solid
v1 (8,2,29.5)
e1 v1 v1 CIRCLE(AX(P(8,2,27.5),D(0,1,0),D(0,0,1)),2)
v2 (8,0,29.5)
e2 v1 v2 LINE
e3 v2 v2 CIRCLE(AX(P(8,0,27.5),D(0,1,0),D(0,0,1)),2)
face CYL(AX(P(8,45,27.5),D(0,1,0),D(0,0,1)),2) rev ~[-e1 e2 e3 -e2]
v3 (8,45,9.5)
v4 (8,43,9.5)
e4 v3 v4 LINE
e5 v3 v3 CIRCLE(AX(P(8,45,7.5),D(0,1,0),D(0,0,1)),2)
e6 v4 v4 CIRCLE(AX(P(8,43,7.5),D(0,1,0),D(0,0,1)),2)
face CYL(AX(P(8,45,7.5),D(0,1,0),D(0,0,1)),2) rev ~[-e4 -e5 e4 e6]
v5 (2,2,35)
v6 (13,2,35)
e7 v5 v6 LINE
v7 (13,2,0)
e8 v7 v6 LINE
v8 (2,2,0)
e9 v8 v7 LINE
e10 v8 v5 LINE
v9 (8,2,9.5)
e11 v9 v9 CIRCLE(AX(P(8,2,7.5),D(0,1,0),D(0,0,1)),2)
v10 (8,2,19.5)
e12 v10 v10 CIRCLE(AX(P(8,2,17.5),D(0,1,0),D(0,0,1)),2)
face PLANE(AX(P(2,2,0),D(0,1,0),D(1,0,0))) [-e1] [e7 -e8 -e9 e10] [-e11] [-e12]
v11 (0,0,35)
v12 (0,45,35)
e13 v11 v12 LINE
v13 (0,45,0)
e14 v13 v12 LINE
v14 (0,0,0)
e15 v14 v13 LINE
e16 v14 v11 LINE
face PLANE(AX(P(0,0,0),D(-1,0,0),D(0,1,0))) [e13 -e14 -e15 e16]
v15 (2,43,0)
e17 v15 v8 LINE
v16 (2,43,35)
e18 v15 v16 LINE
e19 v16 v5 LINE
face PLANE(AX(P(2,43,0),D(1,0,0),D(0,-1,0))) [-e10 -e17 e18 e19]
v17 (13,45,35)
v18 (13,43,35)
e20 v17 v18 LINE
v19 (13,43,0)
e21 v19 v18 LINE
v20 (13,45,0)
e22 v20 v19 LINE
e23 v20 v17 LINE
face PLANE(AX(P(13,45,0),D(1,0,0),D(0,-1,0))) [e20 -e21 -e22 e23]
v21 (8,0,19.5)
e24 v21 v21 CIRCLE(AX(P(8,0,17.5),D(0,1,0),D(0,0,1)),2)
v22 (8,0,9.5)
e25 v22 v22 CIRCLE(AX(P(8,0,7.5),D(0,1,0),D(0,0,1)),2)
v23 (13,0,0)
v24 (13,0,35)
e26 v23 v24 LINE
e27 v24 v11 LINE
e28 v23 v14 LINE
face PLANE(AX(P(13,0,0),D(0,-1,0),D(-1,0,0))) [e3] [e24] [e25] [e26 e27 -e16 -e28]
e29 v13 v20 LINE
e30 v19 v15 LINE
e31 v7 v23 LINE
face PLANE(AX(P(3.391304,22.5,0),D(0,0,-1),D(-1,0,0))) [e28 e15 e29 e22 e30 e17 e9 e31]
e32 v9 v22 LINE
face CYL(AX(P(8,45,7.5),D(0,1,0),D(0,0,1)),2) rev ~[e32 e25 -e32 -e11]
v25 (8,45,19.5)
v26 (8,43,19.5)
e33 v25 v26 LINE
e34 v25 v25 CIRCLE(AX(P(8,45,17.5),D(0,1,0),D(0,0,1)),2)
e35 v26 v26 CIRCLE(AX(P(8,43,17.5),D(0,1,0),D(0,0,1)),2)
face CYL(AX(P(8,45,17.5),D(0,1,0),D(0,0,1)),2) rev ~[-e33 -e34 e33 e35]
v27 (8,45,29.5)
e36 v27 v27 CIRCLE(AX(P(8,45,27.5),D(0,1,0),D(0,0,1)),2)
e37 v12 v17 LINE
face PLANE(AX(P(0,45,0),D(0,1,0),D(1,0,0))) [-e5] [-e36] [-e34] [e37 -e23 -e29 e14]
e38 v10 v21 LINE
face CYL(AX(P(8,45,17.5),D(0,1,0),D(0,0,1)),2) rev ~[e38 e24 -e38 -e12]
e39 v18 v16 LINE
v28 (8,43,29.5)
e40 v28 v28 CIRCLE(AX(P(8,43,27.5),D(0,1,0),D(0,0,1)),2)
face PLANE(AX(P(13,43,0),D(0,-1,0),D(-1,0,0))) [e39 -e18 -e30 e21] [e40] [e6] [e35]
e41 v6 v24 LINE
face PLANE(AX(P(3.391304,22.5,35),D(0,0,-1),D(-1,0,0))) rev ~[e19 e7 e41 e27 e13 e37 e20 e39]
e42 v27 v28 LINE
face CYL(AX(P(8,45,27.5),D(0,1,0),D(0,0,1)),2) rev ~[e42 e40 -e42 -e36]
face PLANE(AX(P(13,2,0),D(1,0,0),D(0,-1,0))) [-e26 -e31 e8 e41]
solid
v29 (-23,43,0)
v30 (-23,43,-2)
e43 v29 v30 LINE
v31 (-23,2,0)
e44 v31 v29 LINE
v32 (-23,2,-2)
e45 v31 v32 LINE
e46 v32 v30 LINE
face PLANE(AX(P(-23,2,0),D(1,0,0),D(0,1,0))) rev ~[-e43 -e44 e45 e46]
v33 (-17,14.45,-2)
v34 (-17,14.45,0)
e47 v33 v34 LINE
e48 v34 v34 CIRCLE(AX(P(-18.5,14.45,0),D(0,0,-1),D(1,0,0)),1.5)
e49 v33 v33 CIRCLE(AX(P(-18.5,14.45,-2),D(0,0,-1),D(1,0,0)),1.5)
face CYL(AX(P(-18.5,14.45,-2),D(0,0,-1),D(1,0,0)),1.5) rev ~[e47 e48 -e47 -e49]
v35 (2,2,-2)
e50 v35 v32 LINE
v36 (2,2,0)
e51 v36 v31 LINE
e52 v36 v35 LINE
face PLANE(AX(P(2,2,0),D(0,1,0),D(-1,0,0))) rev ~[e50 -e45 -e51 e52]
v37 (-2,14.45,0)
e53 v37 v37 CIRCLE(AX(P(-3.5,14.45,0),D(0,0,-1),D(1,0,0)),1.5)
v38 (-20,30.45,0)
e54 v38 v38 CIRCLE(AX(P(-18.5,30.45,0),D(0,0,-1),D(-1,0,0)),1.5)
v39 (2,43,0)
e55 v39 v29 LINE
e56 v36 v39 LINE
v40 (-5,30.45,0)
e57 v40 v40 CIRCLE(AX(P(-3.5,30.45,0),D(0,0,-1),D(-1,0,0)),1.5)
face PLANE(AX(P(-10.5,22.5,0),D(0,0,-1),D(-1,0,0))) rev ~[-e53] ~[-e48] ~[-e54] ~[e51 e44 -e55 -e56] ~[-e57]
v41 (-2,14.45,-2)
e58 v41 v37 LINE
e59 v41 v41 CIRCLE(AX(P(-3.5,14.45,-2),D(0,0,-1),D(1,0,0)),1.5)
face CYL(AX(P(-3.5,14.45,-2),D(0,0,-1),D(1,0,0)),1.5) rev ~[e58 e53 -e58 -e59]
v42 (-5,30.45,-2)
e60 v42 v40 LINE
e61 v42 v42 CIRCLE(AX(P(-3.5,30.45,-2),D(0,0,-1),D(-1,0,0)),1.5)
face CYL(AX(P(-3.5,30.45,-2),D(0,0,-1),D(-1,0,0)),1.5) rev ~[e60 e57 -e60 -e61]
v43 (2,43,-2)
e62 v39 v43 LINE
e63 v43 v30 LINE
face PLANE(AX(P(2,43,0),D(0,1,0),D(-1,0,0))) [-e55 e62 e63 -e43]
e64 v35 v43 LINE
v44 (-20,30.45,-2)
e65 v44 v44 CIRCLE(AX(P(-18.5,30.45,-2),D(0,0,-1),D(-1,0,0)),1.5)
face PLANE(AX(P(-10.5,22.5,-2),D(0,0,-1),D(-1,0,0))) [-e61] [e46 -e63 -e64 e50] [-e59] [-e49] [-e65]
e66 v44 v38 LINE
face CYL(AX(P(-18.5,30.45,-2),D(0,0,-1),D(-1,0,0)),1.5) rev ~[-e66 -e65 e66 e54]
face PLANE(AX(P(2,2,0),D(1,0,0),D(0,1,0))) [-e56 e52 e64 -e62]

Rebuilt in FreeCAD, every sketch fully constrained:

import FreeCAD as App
import Part
import Sketcher

V = App.Vector

doc = App.newDocument("Part")
body = doc.addObject("PartDesign::Body", "Body")

sketch1 = body.newObject("Sketcher::SketchObject", "Sketch")
sketch1.AttachmentSupport = (doc.getObject("XY_Plane"), [""])
sketch1.MapMode = "FlatFace"
sketch1.addGeometry([
    Part.LineSegment(V(0, 45, 0), V(0, 0, 0)),
    Part.LineSegment(V(0, 0, 0), V(13, 0, 0)),
    Part.LineSegment(V(13, 0, 0), V(13, 2, 0)),
    Part.LineSegment(V(13, 2, 0), V(2, 2, 0)),
    Part.LineSegment(V(2, 2, 0), V(2, 43, 0)),
    Part.LineSegment(V(2, 43, 0), V(13, 43, 0)),
    Part.LineSegment(V(13, 43, 0), V(13, 45, 0)),
    Part.LineSegment(V(13, 45, 0), V(0, 45, 0)),
], False)
sketch1.addConstraint([
    Sketcher.Constraint("Coincident", 0, 2, 1, 1),
    Sketcher.Constraint("Coincident", 1, 2, 2, 1),
    Sketcher.Constraint("Coincident", 2, 2, 3, 1),
    Sketcher.Constraint("Coincident", 3, 2, 4, 1),
    Sketcher.Constraint("Coincident", 4, 2, 5, 1),
    Sketcher.Constraint("Coincident", 5, 2, 6, 1),
    Sketcher.Constraint("Coincident", 6, 2, 7, 1),
    Sketcher.Constraint("Coincident", 7, 2, 0, 1),
    Sketcher.Constraint("Vertical", 0),
    Sketcher.Constraint("Horizontal", 1),
    Sketcher.Constraint("Vertical", 2),
    Sketcher.Constraint("Horizontal", 3),
    Sketcher.Constraint("Vertical", 4),
    Sketcher.Constraint("Horizontal", 5),
    Sketcher.Constraint("Vertical", 6),
    Sketcher.Constraint("Horizontal", 7),
    Sketcher.Constraint("Coincident", 0, 2, -1, 1),
    Sketcher.Constraint("Vertical", 2, 2, 5, 2),
    Sketcher.Constraint("Equal", 2, 6),
    Sketcher.Constraint("DistanceX", 1, 1, 1, 2, 13.0),
    Sketcher.Constraint("DistanceX", 3, 2, 3, 1, 11.0),
    Sketcher.Constraint("DistanceY", 0, 2, 0, 1, 45.0),
    Sketcher.Constraint("DistanceY", 2, 1, 2, 2, 2.0),
])
pad1 = body.newObject("PartDesign::Pad", "Pad")
pad1.Profile = sketch1
pad1.Length = 35

sketch2 = body.newObject("Sketcher::SketchObject", "Sketch001")
sketch2.AttachmentSupport = (doc.getObject("XZ_Plane"), [""])
sketch2.MapMode = "FlatFace"
sketch2.AttachmentOffset = App.Placement(V(0, 0, -45), App.Rotation())
sketch2.addGeometry([
    Part.Circle(V(8, 17.5, 0), V(0, 0, 1), 2),
    Part.Circle(V(8, 27.5, 0), V(0, 0, 1), 2),
    Part.Circle(V(8, 7.5, 0), V(0, 0, 1), 2),
], False)
sketch2.addConstraint([
    Sketcher.Constraint("Equal", 0, 1),
    Sketcher.Constraint("Equal", 1, 2),
    Sketcher.Constraint("Vertical", 0, 3, 1, 3),
    Sketcher.Constraint("Vertical", 1, 3, 2, 3),
    Sketcher.Constraint("Diameter", 0, 4.0),
    Sketcher.Constraint("DistanceX", -1, 1, 0, 3, 8.0),
    Sketcher.Constraint("DistanceY", 0, 3, 1, 3, 10.0),
    Sketcher.Constraint("DistanceY", 2, 3, 0, 3, 10.0),
    Sketcher.Constraint("DistanceY", -1, 1, 0, 3, 17.5),
])
pocket1 = body.newObject("PartDesign::Pocket", "Pocket")
pocket1.Profile = sketch2
pocket1.Type = "ThroughAll"
pocket1.Reversed = True
body2 = doc.addObject("PartDesign::Body", "Body001")

sketch3 = body2.newObject("Sketcher::SketchObject", "Sketch002")
sketch3.AttachmentSupport = (doc.getObject("XY_Plane001"), [""])
sketch3.MapMode = "FlatFace"
sketch3.addGeometry([
    Part.LineSegment(V(2, 43, 0), V(2, 2, 0)),
    Part.LineSegment(V(2, 2, 0), V(-23, 2, 0)),
    Part.LineSegment(V(-23, 2, 0), V(-23, 43, 0)),
    Part.LineSegment(V(-23, 43, 0), V(2, 43, 0)),
], False)
sketch3.addConstraint([
    Sketcher.Constraint("Coincident", 0, 2, 1, 1),
    Sketcher.Constraint("Coincident", 1, 2, 2, 1),
    Sketcher.Constraint("Coincident", 2, 2, 3, 1),
    Sketcher.Constraint("Coincident", 3, 2, 0, 1),
    Sketcher.Constraint("Vertical", 0),
    Sketcher.Constraint("Horizontal", 1),
    Sketcher.Constraint("Vertical", 2),
    Sketcher.Constraint("Horizontal", 3),
    Sketcher.Constraint("DistanceX", 1, 2, 1, 1, 25.0),
    Sketcher.Constraint("DistanceY", 0, 2, 0, 1, 41.0),
    Sketcher.Constraint("DistanceX", -1, 1, 0, 2, 2.0),
    Sketcher.Constraint("DistanceY", -1, 1, 0, 2, 2.0),
])
pad2 = body2.newObject("PartDesign::Pad", "Pad001")
pad2.Profile = sketch3
pad2.Length = 2
pad2.Reversed = True

sketch4 = body2.newObject("Sketcher::SketchObject", "Sketch003")
sketch4.AttachmentSupport = (doc.getObject("XY_Plane001"), [""])
sketch4.MapMode = "FlatFace"
sketch4.AttachmentOffset = App.Placement(V(0, 0, -2), App.Rotation())
sketch4.addGeometry([
    Part.Circle(V(-18.5, 30.4, 0), V(0, 0, 1), 1.5),
    Part.Circle(V(-3.5, 30.4, 0), V(0, 0, 1), 1.5),
    Part.Circle(V(-18.5, 14.4, 0), V(0, 0, 1), 1.5),
    Part.Circle(V(-3.5, 14.4, 0), V(0, 0, 1), 1.5),
], False)
sketch4.addConstraint([
    Sketcher.Constraint("Equal", 0, 1),
    Sketcher.Constraint("Equal", 1, 2),
    Sketcher.Constraint("Equal", 2, 3),
    Sketcher.Constraint("Horizontal", 0, 3, 1, 3),
    Sketcher.Constraint("Horizontal", 2, 3, 3, 3),
    Sketcher.Constraint("Vertical", 0, 3, 2, 3),
    Sketcher.Constraint("Vertical", 1, 3, 3, 3),
    Sketcher.Constraint("Diameter", 0, 3.0),
    Sketcher.Constraint("DistanceX", 0, 3, 1, 3, 15.0),
    Sketcher.Constraint("DistanceY", 2, 3, 0, 3, 16.0),
    Sketcher.Constraint("DistanceX", 0, 3, -1, 1, 18.5),
    Sketcher.Constraint("DistanceY", -1, 1, 0, 3, 30.45),
])
pocket2 = body2.newObject("PartDesign::Pocket", "Pocket001")
pocket2.Profile = sketch4
pocket2.Length = 2
pocket2.Reversed = True

doc.recompute()
